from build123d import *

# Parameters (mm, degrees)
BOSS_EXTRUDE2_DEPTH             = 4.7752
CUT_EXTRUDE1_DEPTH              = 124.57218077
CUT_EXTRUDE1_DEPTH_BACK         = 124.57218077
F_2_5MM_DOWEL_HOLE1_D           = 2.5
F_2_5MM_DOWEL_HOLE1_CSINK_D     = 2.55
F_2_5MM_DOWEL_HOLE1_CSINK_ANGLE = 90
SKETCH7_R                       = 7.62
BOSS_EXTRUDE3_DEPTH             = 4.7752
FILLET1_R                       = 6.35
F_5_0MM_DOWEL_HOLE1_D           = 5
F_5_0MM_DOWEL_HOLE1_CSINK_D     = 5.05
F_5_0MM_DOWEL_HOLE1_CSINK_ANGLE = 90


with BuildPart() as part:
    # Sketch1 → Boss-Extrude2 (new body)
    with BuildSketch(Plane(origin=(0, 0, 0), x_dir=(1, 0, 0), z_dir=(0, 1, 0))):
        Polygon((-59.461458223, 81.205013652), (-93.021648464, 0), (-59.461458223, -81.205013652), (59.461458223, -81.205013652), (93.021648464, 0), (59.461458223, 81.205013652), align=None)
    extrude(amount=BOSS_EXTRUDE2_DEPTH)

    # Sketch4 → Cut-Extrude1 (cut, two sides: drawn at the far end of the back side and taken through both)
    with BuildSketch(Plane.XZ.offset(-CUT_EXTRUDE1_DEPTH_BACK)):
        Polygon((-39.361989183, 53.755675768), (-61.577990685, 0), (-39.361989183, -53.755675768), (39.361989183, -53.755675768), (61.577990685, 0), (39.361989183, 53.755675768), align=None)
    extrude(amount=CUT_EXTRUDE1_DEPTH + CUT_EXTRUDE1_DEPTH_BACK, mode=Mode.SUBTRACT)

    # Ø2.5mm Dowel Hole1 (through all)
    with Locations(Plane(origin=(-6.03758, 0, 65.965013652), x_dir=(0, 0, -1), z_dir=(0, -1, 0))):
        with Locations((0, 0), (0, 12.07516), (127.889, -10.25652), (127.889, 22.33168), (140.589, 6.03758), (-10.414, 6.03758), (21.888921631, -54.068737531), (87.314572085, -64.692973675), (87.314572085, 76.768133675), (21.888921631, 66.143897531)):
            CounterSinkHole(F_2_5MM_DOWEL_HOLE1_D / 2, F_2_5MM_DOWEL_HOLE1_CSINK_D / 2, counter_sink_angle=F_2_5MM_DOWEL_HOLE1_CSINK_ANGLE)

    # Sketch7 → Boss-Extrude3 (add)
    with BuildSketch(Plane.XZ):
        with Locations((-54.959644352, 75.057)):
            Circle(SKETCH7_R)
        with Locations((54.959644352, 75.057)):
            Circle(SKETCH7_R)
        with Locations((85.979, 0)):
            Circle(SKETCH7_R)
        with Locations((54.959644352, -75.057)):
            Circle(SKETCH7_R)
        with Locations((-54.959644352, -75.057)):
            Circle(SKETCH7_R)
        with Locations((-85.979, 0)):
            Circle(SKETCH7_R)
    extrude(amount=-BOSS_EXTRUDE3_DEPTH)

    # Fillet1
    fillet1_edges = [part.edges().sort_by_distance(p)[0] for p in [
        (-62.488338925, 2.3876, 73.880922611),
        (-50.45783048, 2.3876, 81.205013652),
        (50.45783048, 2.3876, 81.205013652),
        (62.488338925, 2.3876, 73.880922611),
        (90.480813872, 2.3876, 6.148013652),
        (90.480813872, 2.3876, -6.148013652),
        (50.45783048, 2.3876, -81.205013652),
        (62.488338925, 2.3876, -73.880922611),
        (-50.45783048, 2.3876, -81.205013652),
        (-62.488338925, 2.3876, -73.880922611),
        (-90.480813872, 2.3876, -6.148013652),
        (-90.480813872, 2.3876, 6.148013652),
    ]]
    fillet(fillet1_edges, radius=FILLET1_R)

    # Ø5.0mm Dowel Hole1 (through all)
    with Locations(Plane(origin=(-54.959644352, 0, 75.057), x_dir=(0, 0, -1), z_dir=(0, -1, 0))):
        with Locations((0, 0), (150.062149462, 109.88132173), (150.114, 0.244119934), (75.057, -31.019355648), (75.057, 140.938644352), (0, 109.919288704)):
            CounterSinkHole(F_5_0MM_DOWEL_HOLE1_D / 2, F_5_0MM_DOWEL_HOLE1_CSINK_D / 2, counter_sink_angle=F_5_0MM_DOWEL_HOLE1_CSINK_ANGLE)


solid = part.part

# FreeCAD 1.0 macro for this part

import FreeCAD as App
import Part
import Sketcher
from FreeCAD import Vector
Q = App.Units.Quantity


def edges_at(feature, points):
    """Names of the edges that pass closest to the given points."""
    edges = feature.Shape.Edges
    near = lambda p: min(range(len(edges)), key=lambda i: edges[i].distToShape(Part.Vertex(*p))[0])
    return sorted({f"Edge{near(p) + 1}" for p in points})

doc = App.newDocument("Part")
body = doc.addObject("PartDesign::Body", "Body")

sketch1 = body.newObject("Sketcher::SketchObject", "Sketch")
sketch1.AttachmentSupport = (doc.getObject("XZ_Plane"), [""])
sketch1.MapMode = "FlatFace"
sketch1.addGeometry(Part.LineSegment(Vector(-59, -81, 0), Vector(-93, 0, 0)), False)
sketch1.addGeometry(Part.LineSegment(Vector(-93, 0, 0), Vector(-59, 81, 0)), False)
sketch1.addGeometry(Part.LineSegment(Vector(-59, 81, 0), Vector(59, 81, 0)), False)
sketch1.addGeometry(Part.LineSegment(Vector(59, 81, 0), Vector(93, 0, 0)), False)
sketch1.addGeometry(Part.LineSegment(Vector(93, 0, 0), Vector(59, -81, 0)), False)
sketch1.addGeometry(Part.LineSegment(Vector(59, -81, 0), Vector(-59, -81, 0)), False)
sketch1.addConstraint(Sketcher.Constraint("Coincident", 0, 2, 1, 1))
sketch1.addConstraint(Sketcher.Constraint("Coincident", 1, 2, 2, 1))
sketch1.addConstraint(Sketcher.Constraint("Coincident", 2, 2, 3, 1))
sketch1.addConstraint(Sketcher.Constraint("Coincident", 3, 2, 4, 1))
sketch1.addConstraint(Sketcher.Constraint("Coincident", 4, 2, 5, 1))
sketch1.addConstraint(Sketcher.Constraint("Coincident", 5, 2, 0, 1))
sketch1.addConstraint(Sketcher.Constraint("Horizontal", 2))
sketch1.addConstraint(Sketcher.Constraint("Horizontal", 5))
sketch1.addConstraint(Sketcher.Constraint("Symmetric", 0, 2, 3, 2, -1, 1))
sketch1.addConstraint(Sketcher.Constraint("Symmetric", 1, 2, 4, 2, -1, 1))
sketch1.addConstraint(Sketcher.Constraint("PointOnObject", 0, 2, -1))
sketch1.addConstraint(Sketcher.Constraint("Parallel", 0, 3))
sketch1.addConstraint(Sketcher.Constraint("Vertical", 2, 2, 4, 2))
sketch1.addConstraint(Sketcher.Constraint("DistanceX", 2, 1, 2, 2, 118.922916))
sketch1.addConstraint(Sketcher.Constraint("DistanceX", 0, 2, -1, 1, 93.021648))
sketch1.addConstraint(Sketcher.Constraint("Distance", 0, 87.866607))
pad1 = body.newObject("PartDesign::Pad", "Pad")
pad1.Profile = sketch1
pad1.Length = Q("0.188 in")
pad1.Reversed = True

sketch2 = body.newObject("Sketcher::SketchObject", "Sketch001")
sketch2.AttachmentSupport = (doc.getObject("XZ_Plane"), [""])
sketch2.MapMode = "FlatFace"
sketch2.addGeometry(Part.LineSegment(Vector(-39, 54, 0), Vector(-62, 0, 0)), False)
sketch2.addGeometry(Part.LineSegment(Vector(-62, 0, 0), Vector(-39, -54, 0)), False)
sketch2.addGeometry(Part.LineSegment(Vector(-39, -54, 0), Vector(39, -54, 0)), False)
sketch2.addGeometry(Part.LineSegment(Vector(39, -54, 0), Vector(62, 0, 0)), False)
sketch2.addGeometry(Part.LineSegment(Vector(62, 0, 0), Vector(39, 54, 0)), False)
sketch2.addGeometry(Part.LineSegment(Vector(39, 54, 0), Vector(-39, 54, 0)), False)
sketch2.addConstraint(Sketcher.Constraint("Coincident", 0, 2, 1, 1))
sketch2.addConstraint(Sketcher.Constraint("Coincident", 1, 2, 2, 1))
sketch2.addConstraint(Sketcher.Constraint("Coincident", 2, 2, 3, 1))
sketch2.addConstraint(Sketcher.Constraint("Coincident", 3, 2, 4, 1))
sketch2.addConstraint(Sketcher.Constraint("Coincident", 4, 2, 5, 1))
sketch2.addConstraint(Sketcher.Constraint("Coincident", 5, 2, 0, 1))
sketch2.addConstraint(Sketcher.Constraint("Horizontal", 2))
sketch2.addConstraint(Sketcher.Constraint("Horizontal", 5))
sketch2.addConstraint(Sketcher.Constraint("Symmetric", 0, 2, 3, 2, -1, 1))
sketch2.addConstraint(Sketcher.Constraint("Symmetric", 1, 2, 4, 2, -1, 1))
sketch2.addConstraint(Sketcher.Constraint("PointOnObject", 0, 2, -1))
sketch2.addConstraint(Sketcher.Constraint("Parallel", 0, 3))
sketch2.addConstraint(Sketcher.Constraint("Vertical", 2, 2, 4, 2))
sketch2.addConstraint(Sketcher.Constraint("DistanceX", 2, 1, 2, 2, 78.723978))
sketch2.addConstraint(Sketcher.Constraint("DistanceX", 0, 2, 1, 2, 22.216002))
sketch2.addConstraint(Sketcher.Constraint("DistanceY", 2, 2, 4, 2, 107.511352))
pocket1 = body.newObject("PartDesign::Pocket", "Pocket")
pocket1.Profile = sketch2
pocket1.Type = "ThroughAll"
pocket1.Midplane = True

sketch3 = body.newObject("Sketcher::SketchObject", "Sketch002")
sketch3.AttachmentSupport = (doc.getObject("XZ_Plane"), [""])
sketch3.MapMode = "FlatFace"
sketch3.addGeometry(Part.Circle(Vector(-6, 66, 0), Vector(0, 0, 1), 1.2), False)
sketch3.addGeometry(Part.Circle(Vector(6, 66, 0), Vector(0, 0, 1), 1.2), False)
sketch3.addGeometry(Part.Circle(Vector(-16.3, -61.9, 0), Vector(0, 0, 1), 1.2), False)
sketch3.addGeometry(Part.Circle(Vector(16.3, -61.9, 0), Vector(0, 0, 1), 1.2), False)
sketch3.addGeometry(Part.Circle(Vector(0, -74.6, 0), Vector(0, 0, 1), 1.2), False)
sketch3.addGeometry(Part.Circle(Vector(0, 76.4, 0), Vector(0, 0, 1), 1.2), False)
sketch3.addGeometry(Part.Circle(Vector(-60.1, 44.1, 0), Vector(0, 0, 1), 1.2), False)
sketch3.addGeometry(Part.Circle(Vector(-70.7, -21.3, 0), Vector(0, 0, 1), 1.2), False)
sketch3.addGeometry(Part.Circle(Vector(70.7, -21.3, 0), Vector(0, 0, 1), 1.2), False)
sketch3.addGeometry(Part.Circle(Vector(60.1, 44.1, 0), Vector(0, 0, 1), 1.2), False)
sketch3.addConstraint(Sketcher.Constraint("Equal", 0, 1))
sketch3.addConstraint(Sketcher.Constraint("Equal", 1, 2))
sketch3.addConstraint(Sketcher.Constraint("Equal", 2, 3))
sketch3.addConstraint(Sketcher.Constraint("Equal", 3, 4))
sketch3.addConstraint(Sketcher.Constraint("Equal", 4, 5))
sketch3.addConstraint(Sketcher.Constraint("Equal", 5, 6))
sketch3.addConstraint(Sketcher.Constraint("Equal", 6, 7))
sketch3.addConstraint(Sketcher.Constraint("Equal", 7, 8))
sketch3.addConstraint(Sketcher.Constraint("Equal", 8, 9))
sketch3.addConstraint(Sketcher.Constraint("Symmetric", 0, 3, 1, 3, -2))
sketch3.addConstraint(Sketcher.Constraint("Symmetric", 2, 3, 3, 3, -2))
sketch3.addConstraint(Sketcher.Constraint("Symmetric", 7, 3, 8, 3, -2))
sketch3.addConstraint(Sketcher.Constraint("Symmetric", 6, 3, 9, 3, -2))
sketch3.addConstraint(Sketcher.Constraint("PointOnObject", 4, 3, -2))
sketch3.addConstraint(Sketcher.Constraint("PointOnObject", 5, 3, -2))
sketch3.addConstraint(Sketcher.Constraint("DistanceY", 4, 3, 2, 3, Q("0.5 in")))
sketch3.addConstraint(Sketcher.Constraint("Diameter", 0, 2.5))
sketch3.addConstraint(Sketcher.Constraint("DistanceY", 0, 3, 5, 3, Q("0.41 in")))
sketch3.addConstraint(Sketcher.Constraint("DistanceY", 2, 3, 0, 3, Q("5.035 in")))
sketch3.addConstraint(Sketcher.Constraint("DistanceX", 2, 3, 3, 3, Q("1.283 in")))
sketch3.addConstraint(Sketcher.Constraint("DistanceX", 0, 3, -1, 1, Q("0.2377 in")))
sketch3.addConstraint(Sketcher.Constraint("DistanceY", 7, 3, -1, 1, 21.349558))
sketch3.addConstraint(Sketcher.Constraint("DistanceY", 6, 3, 0, 3, 21.888922))
sketch3.addConstraint(Sketcher.Constraint("DistanceY", 7, 3, 6, 3, 65.42565))
sketch3.addConstraint(Sketcher.Constraint("DistanceX", 6, 3, -1, 1, 60.106318))
sketch3.addConstraint(Sketcher.Constraint("DistanceX", 7, 3, -1, 1, 70.730554))
doc.recompute()
hole = body.newObject("PartDesign::Hole", "Hole")
hole.Profile = sketch3
hole.ThreadType = "None"
hole.Diameter = 2.5
hole.DepthType = "ThroughAll"
hole.HoleCutType = "Countersink"
hole.HoleCutDiameter = 2.55
hole.HoleCutCountersinkAngle = 90

sketch4 = body.newObject("Sketcher::SketchObject", "Sketch003")
sketch4.AttachmentSupport = (doc.getObject("XZ_Plane"), [""])
sketch4.MapMode = "FlatFace"
sketch4.addGeometry(Part.Circle(Vector(-55, 75, 0), Vector(0, 0, 1), 8), False)
sketch4.addGeometry(Part.Circle(Vector(55, 75, 0), Vector(0, 0, 1), 8), False)
sketch4.addGeometry(Part.Circle(Vector(86, 0, 0), Vector(0, 0, 1), 8), False)
sketch4.addGeometry(Part.Circle(Vector(55, -75, 0), Vector(0, 0, 1), 8), False)
sketch4.addGeometry(Part.Circle(Vector(-55, -75, 0), Vector(0, 0, 1), 8), False)
sketch4.addGeometry(Part.Circle(Vector(-86, 0, 0), Vector(0, 0, 1), 8), False)
sketch4.addConstraint(Sketcher.Constraint("Equal", 0, 1))
sketch4.addConstraint(Sketcher.Constraint("Equal", 1, 2))
sketch4.addConstraint(Sketcher.Constraint("Equal", 2, 3))
sketch4.addConstraint(Sketcher.Constraint("Equal", 3, 4))
sketch4.addConstraint(Sketcher.Constraint("Equal", 4, 5))
sketch4.addConstraint(Sketcher.Constraint("Symmetric", 0, 3, 3, 3, -1, 1))
sketch4.addConstraint(Sketcher.Constraint("Symmetric", 1, 3, 4, 3, -1, 1))
sketch4.addConstraint(Sketcher.Constraint("Symmetric", 2, 3, 5, 3, -1, 1))
sketch4.addConstraint(Sketcher.Constraint("Symmetric", 0, 3, 1, 3, -2))
sketch4.addConstraint(Sketcher.Constraint("PointOnObject", 2, 3, -1))
sketch4.addConstraint(Sketcher.Constraint("Diameter", 0, Q("0.6 in")))
sketch4.addConstraint(Sketcher.Constraint("DistanceY", 3, 3, 1, 3, Q("5.91 in")))
sketch4.addConstraint(Sketcher.Constraint("DistanceX", 5, 3, 2, 3, Q("6.77 in")))
sketch4.addConstraint(Sketcher.Constraint("DistanceX", 0, 3, 1, 3, 109.919289))
pad2 = body.newObject("PartDesign::Pad", "Pad001")
pad2.Profile = sketch4
pad2.Length = Q("0.188 in")
pad2.Reversed = True
doc.recompute()

fillet = body.newObject("PartDesign::Fillet", "Fillet")
fillet.Base = (pad2, edges_at(pad2, [
    (-62.488, 2.388, 73.881),
    (-50.458, 2.388, 81.205),
    (50.458, 2.388, 81.205),
    (62.488, 2.388, 73.881),
    (90.481, 2.388, 6.148),
    (90.481, 2.388, -6.148),
    (50.458, 2.388, -81.205),
    (62.488, 2.388, -73.881),
    (-50.458, 2.388, -81.205),
    (-62.488, 2.388, -73.881),
    (-90.481, 2.388, -6.148),
    (-90.481, 2.388, 6.148),
]))
fillet.Radius = Q("0.25 in")

sketch5 = body.newObject("Sketcher::SketchObject", "Sketch004")
sketch5.AttachmentSupport = (doc.getObject("XZ_Plane"), [""])
sketch5.MapMode = "FlatFace"
sketch5.addGeometry(Part.Circle(Vector(-55, 75.1, 0), Vector(0, 0, 1), 2.5), False)
sketch5.addGeometry(Part.Circle(Vector(54.9, -75, 0), Vector(0, 0, 1), 2.5), False)
sketch5.addGeometry(Part.Circle(Vector(-54.7, -75.1, 0), Vector(0, 0, 1), 2.5), False)
sketch5.addGeometry(Part.Circle(Vector(-86, 0, 0), Vector(0, 0, 1), 2.5), False)
sketch5.addGeometry(Part.Circle(Vector(86, 0, 0), Vector(0, 0, 1), 2.5), False)
sketch5.addGeometry(Part.Circle(Vector(55, 75.1, 0), Vector(0, 0, 1), 2.5), False)
sketch5.addConstraint(Sketcher.Constraint("Equal", 0, 1))
sketch5.addConstraint(Sketcher.Constraint("Equal", 1, 2))
sketch5.addConstraint(Sketcher.Constraint("Equal", 2, 3))
sketch5.addConstraint(Sketcher.Constraint("Equal", 3, 4))
sketch5.addConstraint(Sketcher.Constraint("Equal", 4, 5))
sketch5.addConstraint(Sketcher.Constraint("Symmetric", 3, 3, 4, 3, -1, 1))
sketch5.addConstraint(Sketcher.Constraint("Symmetric", 0, 3, 5, 3, -2))
sketch5.addConstraint(Sketcher.Constraint("PointOnObject", 3, 3, -1))
sketch5.addConstraint(Sketcher.Constraint("Diameter", 0, 5.0))
sketch5.addConstraint(Sketcher.Constraint("DistanceY", 2, 3, 0, 3, Q("5.91 in")))
sketch5.addConstraint(Sketcher.Constraint("DistanceX", 3, 3, 4, 3, Q("6.77 in")))
sketch5.addConstraint(Sketcher.Constraint("DistanceY", -1, 1, 0, 3, Q("2.955 in")))
sketch5.addConstraint(Sketcher.Constraint("DistanceX", 2, 3, 1, 3, 109.637202))
sketch5.addConstraint(Sketcher.Constraint("DistanceY", 1, 3, -1, 1, 75.005149))
sketch5.addConstraint(Sketcher.Constraint("DistanceX", 0, 3, 1, 3, 109.881322))
sketch5.addConstraint(Sketcher.Constraint("DistanceX", 0, 3, 5, 3, 109.919289))
doc.recompute()
hole2 = body.newObject("PartDesign::Hole", "Hole001")
hole2.Profile = sketch5
hole2.ThreadType = "None"
hole2.Diameter = 5
hole2.DepthType = "ThroughAll"
hole2.HoleCutType = "Countersink"
hole2.HoleCutDiameter = 5.05
hole2.HoleCutCountersinkAngle = 90

doc.recompute()
